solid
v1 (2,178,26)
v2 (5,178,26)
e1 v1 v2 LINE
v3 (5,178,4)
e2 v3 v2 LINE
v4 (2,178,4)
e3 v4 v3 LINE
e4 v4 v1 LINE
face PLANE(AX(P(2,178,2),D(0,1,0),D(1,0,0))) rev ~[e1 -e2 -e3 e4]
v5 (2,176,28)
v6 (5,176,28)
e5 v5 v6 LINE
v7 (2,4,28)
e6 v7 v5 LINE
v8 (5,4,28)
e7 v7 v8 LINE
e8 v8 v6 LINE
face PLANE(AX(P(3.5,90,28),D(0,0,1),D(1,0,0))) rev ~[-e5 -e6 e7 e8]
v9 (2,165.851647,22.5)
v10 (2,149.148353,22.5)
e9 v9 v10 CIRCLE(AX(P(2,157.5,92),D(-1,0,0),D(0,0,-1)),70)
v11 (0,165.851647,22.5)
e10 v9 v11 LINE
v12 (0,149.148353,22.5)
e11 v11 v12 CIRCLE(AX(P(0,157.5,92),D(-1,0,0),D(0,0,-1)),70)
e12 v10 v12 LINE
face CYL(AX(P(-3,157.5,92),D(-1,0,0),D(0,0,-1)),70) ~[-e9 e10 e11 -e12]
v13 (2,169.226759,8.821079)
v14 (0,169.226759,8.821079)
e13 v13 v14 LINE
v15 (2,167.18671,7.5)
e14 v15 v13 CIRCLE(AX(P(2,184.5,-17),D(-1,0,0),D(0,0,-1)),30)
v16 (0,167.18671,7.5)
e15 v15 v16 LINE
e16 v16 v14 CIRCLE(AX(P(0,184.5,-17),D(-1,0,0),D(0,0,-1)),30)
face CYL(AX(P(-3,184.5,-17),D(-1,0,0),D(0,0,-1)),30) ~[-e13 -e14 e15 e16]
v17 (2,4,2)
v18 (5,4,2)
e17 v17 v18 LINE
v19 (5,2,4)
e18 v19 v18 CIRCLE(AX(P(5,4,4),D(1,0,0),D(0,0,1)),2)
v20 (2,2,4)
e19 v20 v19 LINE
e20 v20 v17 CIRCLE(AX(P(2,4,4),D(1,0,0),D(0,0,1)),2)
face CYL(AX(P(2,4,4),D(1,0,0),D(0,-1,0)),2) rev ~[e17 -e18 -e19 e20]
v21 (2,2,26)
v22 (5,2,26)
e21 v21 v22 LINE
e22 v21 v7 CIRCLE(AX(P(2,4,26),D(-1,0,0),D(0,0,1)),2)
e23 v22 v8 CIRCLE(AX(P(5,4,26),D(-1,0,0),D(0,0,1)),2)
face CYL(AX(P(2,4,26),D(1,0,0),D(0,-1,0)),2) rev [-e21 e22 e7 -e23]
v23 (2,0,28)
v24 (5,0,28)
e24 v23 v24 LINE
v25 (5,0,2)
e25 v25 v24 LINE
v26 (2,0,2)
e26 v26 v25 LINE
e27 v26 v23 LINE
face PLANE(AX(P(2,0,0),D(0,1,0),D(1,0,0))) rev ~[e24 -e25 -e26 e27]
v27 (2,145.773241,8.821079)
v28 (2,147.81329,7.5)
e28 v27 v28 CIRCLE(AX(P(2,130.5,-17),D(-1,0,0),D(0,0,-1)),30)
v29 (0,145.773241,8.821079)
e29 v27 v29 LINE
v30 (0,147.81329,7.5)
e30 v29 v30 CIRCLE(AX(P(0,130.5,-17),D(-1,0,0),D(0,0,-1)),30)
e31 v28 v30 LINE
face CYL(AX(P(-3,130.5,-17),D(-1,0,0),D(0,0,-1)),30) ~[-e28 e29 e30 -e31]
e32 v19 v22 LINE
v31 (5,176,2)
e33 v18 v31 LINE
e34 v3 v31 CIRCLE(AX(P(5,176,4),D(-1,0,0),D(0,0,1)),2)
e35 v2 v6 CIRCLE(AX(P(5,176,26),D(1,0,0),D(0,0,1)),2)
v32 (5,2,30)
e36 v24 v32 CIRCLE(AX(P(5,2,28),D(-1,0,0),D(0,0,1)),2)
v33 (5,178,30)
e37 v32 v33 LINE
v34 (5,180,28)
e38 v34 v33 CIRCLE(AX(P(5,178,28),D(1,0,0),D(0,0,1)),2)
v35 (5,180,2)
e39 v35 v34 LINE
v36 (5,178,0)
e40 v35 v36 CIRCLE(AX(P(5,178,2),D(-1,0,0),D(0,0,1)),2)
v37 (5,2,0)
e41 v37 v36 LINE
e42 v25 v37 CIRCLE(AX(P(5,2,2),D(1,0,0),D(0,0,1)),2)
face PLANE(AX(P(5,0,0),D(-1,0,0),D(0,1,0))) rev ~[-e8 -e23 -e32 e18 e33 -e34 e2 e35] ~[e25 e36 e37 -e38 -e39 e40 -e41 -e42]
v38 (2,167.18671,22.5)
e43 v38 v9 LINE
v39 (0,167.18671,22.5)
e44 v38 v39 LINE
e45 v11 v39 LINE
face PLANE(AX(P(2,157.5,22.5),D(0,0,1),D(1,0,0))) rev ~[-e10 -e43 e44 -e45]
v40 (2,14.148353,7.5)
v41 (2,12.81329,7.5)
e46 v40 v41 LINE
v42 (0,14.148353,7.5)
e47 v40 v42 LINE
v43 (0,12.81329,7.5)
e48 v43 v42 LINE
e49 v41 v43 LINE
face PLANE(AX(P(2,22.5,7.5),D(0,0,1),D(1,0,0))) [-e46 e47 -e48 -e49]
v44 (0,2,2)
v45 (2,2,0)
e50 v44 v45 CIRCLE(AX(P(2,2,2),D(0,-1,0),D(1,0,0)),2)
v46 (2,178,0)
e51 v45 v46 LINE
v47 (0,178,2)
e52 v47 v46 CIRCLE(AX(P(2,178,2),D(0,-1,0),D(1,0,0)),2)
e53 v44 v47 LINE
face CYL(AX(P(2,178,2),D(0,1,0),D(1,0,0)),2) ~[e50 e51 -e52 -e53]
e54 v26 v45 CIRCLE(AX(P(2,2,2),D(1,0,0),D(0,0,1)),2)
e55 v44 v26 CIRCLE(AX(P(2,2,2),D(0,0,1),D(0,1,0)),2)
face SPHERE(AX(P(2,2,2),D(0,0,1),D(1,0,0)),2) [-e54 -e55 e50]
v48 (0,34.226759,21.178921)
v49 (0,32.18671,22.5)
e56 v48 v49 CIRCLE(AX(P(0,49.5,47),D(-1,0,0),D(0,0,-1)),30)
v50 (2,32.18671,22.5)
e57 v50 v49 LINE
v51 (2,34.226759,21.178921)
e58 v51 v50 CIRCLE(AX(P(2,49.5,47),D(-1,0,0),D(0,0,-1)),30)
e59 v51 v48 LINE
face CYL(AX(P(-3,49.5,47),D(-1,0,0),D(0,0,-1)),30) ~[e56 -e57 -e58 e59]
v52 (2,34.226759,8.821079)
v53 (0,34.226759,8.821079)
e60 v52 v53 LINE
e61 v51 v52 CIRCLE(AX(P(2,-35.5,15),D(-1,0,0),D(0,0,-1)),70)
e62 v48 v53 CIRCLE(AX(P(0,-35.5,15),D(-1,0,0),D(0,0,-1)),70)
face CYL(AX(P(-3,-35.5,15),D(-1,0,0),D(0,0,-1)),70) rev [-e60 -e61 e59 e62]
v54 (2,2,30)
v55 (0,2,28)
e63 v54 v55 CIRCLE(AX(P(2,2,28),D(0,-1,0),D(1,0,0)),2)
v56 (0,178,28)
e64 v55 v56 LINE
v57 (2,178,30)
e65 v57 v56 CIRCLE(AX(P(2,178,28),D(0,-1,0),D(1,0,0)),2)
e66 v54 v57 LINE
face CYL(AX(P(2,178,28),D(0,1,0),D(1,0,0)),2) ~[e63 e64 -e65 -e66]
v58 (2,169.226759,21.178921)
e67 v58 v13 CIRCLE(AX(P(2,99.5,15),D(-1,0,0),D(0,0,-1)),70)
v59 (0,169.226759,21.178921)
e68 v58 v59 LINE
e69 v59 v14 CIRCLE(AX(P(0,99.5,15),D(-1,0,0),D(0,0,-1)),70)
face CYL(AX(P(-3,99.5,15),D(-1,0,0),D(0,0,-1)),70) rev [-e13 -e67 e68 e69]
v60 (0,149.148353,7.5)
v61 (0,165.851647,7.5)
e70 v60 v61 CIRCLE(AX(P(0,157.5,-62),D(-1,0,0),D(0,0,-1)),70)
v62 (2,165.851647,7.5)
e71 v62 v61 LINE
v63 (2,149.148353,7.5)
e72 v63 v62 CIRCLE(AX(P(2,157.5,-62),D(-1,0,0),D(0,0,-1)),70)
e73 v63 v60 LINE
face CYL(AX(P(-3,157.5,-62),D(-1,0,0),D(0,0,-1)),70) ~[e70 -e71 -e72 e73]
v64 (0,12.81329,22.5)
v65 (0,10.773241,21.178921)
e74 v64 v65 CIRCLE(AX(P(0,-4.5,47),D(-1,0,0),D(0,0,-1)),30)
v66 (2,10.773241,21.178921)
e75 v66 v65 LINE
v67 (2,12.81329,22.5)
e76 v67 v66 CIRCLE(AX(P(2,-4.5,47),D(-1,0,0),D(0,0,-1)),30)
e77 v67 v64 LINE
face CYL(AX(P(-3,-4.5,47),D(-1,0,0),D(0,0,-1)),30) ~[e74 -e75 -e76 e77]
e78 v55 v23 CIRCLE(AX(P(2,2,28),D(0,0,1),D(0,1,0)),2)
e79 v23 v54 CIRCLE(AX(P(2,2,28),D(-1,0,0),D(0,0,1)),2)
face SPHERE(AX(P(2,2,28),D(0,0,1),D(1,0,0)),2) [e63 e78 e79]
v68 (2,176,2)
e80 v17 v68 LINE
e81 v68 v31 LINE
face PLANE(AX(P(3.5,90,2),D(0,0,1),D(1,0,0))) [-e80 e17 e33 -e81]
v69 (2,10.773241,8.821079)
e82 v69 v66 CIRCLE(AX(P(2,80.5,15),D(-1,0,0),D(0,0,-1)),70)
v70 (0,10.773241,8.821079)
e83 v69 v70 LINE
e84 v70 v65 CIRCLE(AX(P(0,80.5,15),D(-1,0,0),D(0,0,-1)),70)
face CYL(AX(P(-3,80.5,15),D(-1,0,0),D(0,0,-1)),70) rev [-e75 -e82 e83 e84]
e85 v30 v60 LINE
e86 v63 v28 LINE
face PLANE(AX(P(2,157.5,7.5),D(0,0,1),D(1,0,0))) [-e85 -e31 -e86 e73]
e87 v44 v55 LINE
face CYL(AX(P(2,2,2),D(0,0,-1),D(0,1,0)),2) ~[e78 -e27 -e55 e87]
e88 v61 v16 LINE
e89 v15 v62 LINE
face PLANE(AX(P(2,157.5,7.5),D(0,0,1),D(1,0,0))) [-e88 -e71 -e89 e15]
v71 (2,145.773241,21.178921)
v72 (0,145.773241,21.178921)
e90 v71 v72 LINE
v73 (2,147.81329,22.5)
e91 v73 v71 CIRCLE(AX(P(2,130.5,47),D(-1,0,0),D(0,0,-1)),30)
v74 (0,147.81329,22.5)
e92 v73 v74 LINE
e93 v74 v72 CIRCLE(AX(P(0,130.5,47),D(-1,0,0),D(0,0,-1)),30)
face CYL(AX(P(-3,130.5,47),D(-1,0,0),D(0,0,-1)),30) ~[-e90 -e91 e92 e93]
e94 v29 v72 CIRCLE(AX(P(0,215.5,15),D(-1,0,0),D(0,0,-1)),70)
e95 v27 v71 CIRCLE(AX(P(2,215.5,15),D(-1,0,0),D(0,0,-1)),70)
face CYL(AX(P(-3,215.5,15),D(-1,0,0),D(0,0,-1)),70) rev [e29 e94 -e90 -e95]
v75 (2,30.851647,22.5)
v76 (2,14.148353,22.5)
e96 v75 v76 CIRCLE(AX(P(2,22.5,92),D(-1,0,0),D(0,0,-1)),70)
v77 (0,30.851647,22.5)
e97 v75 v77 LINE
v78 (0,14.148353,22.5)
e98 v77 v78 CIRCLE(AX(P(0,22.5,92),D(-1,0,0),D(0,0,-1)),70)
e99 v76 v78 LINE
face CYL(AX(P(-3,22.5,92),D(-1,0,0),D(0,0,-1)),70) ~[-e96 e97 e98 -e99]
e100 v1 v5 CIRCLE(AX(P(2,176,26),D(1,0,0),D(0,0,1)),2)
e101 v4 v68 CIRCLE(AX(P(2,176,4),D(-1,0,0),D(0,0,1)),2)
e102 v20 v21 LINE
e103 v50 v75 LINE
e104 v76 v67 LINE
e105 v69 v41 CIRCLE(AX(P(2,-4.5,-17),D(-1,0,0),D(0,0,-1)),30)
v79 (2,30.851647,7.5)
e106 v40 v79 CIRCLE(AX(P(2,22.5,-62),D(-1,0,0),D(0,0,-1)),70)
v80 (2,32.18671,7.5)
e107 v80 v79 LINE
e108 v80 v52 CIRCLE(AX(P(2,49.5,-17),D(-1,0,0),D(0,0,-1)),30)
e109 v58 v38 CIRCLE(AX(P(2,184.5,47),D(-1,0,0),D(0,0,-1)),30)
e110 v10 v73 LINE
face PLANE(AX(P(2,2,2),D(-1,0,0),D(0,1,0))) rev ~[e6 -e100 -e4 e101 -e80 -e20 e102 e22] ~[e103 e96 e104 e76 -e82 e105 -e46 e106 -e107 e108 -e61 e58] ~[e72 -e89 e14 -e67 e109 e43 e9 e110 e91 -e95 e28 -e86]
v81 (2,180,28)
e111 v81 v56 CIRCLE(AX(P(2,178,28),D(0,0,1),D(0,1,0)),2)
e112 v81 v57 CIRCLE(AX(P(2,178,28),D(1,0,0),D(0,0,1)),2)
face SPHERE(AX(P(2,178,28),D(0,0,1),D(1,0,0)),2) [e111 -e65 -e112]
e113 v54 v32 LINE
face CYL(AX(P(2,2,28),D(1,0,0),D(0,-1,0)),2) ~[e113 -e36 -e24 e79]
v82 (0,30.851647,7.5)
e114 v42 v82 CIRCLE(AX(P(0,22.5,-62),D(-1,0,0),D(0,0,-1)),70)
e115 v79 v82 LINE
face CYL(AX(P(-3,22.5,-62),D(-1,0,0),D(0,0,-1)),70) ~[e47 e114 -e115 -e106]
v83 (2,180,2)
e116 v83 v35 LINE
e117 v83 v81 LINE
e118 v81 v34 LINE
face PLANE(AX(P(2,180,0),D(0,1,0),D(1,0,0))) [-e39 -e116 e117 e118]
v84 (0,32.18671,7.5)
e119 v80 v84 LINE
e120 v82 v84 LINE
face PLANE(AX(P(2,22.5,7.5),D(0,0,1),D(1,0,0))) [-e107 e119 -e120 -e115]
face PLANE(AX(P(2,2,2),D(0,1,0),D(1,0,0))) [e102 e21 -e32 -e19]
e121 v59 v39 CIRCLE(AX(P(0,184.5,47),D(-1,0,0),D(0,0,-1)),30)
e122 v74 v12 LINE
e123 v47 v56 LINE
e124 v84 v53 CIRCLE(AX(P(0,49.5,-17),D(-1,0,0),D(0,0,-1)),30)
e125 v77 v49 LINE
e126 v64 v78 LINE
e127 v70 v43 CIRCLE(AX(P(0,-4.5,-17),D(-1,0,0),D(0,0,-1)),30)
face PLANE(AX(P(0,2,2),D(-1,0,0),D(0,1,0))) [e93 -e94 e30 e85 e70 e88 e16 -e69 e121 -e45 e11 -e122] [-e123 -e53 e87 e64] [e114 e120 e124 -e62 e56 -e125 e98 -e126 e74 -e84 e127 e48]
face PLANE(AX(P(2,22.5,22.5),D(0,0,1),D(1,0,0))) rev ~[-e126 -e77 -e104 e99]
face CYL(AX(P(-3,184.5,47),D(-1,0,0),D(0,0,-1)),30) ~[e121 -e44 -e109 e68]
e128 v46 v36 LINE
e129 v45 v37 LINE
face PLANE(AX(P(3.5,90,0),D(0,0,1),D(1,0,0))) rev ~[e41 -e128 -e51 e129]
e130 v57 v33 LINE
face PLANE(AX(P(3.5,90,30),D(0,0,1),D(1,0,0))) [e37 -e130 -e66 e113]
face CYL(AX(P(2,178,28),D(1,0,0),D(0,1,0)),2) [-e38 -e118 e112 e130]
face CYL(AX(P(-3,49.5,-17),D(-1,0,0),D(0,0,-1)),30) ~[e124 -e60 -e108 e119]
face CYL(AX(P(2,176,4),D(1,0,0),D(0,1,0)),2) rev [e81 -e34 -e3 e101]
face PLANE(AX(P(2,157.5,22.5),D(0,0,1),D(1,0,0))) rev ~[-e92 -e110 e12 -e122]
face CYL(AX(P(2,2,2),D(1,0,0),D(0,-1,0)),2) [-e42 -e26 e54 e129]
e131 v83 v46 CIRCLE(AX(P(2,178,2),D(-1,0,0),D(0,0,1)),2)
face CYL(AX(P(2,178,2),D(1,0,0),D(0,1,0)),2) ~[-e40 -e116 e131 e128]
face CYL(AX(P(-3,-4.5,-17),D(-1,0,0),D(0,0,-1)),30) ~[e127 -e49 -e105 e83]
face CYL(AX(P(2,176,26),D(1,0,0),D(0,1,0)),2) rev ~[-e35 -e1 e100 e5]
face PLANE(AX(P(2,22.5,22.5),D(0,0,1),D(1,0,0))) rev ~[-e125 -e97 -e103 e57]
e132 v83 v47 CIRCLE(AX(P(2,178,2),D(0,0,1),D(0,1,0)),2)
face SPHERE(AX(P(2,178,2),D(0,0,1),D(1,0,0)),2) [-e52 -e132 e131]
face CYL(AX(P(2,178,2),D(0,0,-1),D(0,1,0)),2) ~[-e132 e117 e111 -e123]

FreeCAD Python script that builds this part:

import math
import FreeCAD as App
import Part
import Sketcher


def edges_at(feature, points):
    """Names of the edges that pass closest to the given points."""
    edges = feature.Shape.Edges
    near = lambda p: min(range(len(edges)), key=lambda i: edges[i].distToShape(Part.Vertex(*p))[0])
    return sorted({f"Edge{near(p) + 1}" for p in points})

doc = App.newDocument("Part")
body = doc.addObject("PartDesign::Body", "Body")

sketch1 = doc.addObject("Sketcher::SketchObject", "Sketch")
body.addObject(sketch1)
sketch1.AttachmentSupport = (doc.XY_Plane, [""])
sketch1.MapMode = "FlatFace"
sketch1.AttachmentOffset = App.Placement(App.Vector(0, 0, 2), App.Rotation())
sketch1.addGeometry(Part.LineSegment(App.Vector(7, 178, 0), App.Vector(7, 2, 0)), False)
sketch1.addGeometry(Part.LineSegment(App.Vector(7, 2, 0), App.Vector(10, 2, 0)), False)
sketch1.addGeometry(Part.LineSegment(App.Vector(10, 2, 0), App.Vector(10, 178, 0)), False)
sketch1.addGeometry(Part.LineSegment(App.Vector(10, 178, 0), App.Vector(7, 178, 0)), False)
sketch1.addConstraint(Sketcher.Constraint("Coincident", 0, 2, 1, 1))
sketch1.addConstraint(Sketcher.Constraint("Coincident", 1, 2, 2, 1))
sketch1.addConstraint(Sketcher.Constraint("Coincident", 2, 2, 3, 1))
sketch1.addConstraint(Sketcher.Constraint("Coincident", 3, 2, 0, 1))
sketch1.addConstraint(Sketcher.Constraint("Vertical", 0))
sketch1.addConstraint(Sketcher.Constraint("Horizontal", 1))
sketch1.addConstraint(Sketcher.Constraint("Vertical", 2))
sketch1.addConstraint(Sketcher.Constraint("Horizontal", 3))
sketch1.addConstraint(Sketcher.Constraint("DistanceX", 1, 1, 1, 2, 3.0))
sketch1.addConstraint(Sketcher.Constraint("DistanceY", 0, 2, 0, 1, 176.0))
sketch1.addConstraint(Sketcher.Constraint("DistanceX", -1, 1, 0, 2, 7.0))
sketch1.addConstraint(Sketcher.Constraint("DistanceY", -1, 1, 0, 2, 2.0))
pad1 = doc.addObject("PartDesign::Pad", "Pad")
body.addObject(pad1)
pad1.Profile = sketch1
pad1.Length = 26
doc.recompute()

fillet = doc.addObject("PartDesign::Fillet", "Fillet")
body.addObject(fillet)
fillet.Base = (pad1, edges_at(pad1, [
    (8.5, 2, 2),
    (8.5, 2, 28),
    (8.5, 178, 2),
    (8.5, 178, 28),
]))
fillet.Radius = 2
body2 = doc.addObject("PartDesign::Body", "Body001")
doc.recompute()

body.Placement = App.Placement(App.Vector(-5, 0, 0), App.Rotation(App.Vector(0, 0, 1), 0))
boolean = doc.addObject("PartDesign::Boolean", "Boolean")
body2.addObject(boolean)
boolean.Type = "Fuse"
boolean.addObjects([body])
body3 = doc.addObject("PartDesign::Body", "Body002")

sketch2 = doc.addObject("Sketcher::SketchObject", "Sketch001")
body3.addObject(sketch2)
sketch2.AttachmentSupport = (doc.getObject("YZ_Plane002"), [""])
sketch2.MapMode = "FlatFace"
sketch2.AttachmentOffset = App.Placement(App.Vector(0, 0, 22), App.Rotation())
sketch2.addGeometry(Part.Circle(App.Vector(-27, 39.5, 0), App.Vector(0, 0, 1), 30), False)
sketch2.addConstraint(Sketcher.Constraint("Diameter", 0, 60.0))
sketch2.addConstraint(Sketcher.Constraint("DistanceX", 0, 3, -1, 1, 27.0))
sketch2.addConstraint(Sketcher.Constraint("DistanceY", -1, 1, 0, 3, 39.5))
pad2 = doc.addObject("PartDesign::Pad", "Pad001")
body3.addObject(pad2)
pad2.Profile = sketch2
pad2.Length = 10
body4 = doc.addObject("PartDesign::Body", "Body003")

sketch3 = doc.addObject("Sketcher::SketchObject", "Sketch002")
body4.addObject(sketch3)
sketch3.AttachmentSupport = (doc.getObject("YZ_Plane003"), [""])
sketch3.MapMode = "FlatFace"
sketch3.AttachmentOffset = App.Placement(App.Vector(0, 0, 22), App.Rotation())
sketch3.addGeometry(Part.Circle(App.Vector(-27, -24.5, 0), App.Vector(0, 0, 1), 30), False)
sketch3.addConstraint(Sketcher.Constraint("Diameter", 0, 60.0))
sketch3.addConstraint(Sketcher.Constraint("DistanceX", 0, 3, -1, 1, 27.0))
sketch3.addConstraint(Sketcher.Constraint("DistanceY", 0, 3, -1, 1, 24.5))
pad3 = doc.addObject("PartDesign::Pad", "Pad002")
body4.addObject(pad3)
pad3.Profile = sketch3
pad3.Length = 10
body5 = doc.addObject("PartDesign::Body", "Body004")

sketch4 = doc.addObject("Sketcher::SketchObject", "Sketch003")
body5.addObject(sketch4)
sketch4.AttachmentSupport = (doc.getObject("YZ_Plane004"), [""])
sketch4.MapMode = "FlatFace"
sketch4.AttachmentOffset = App.Placement(App.Vector(0, 0, 22), App.Rotation())
sketch4.addGeometry(Part.Circle(App.Vector(27, -24.5, 0), App.Vector(0, 0, 1), 30), False)
sketch4.addConstraint(Sketcher.Constraint("Diameter", 0, 60.0))
sketch4.addConstraint(Sketcher.Constraint("DistanceX", -1, 1, 0, 3, 27.0))
sketch4.addConstraint(Sketcher.Constraint("DistanceY", 0, 3, -1, 1, 24.5))
pad4 = doc.addObject("PartDesign::Pad", "Pad003")
body5.addObject(pad4)
pad4.Profile = sketch4
pad4.Length = 10
body6 = doc.addObject("PartDesign::Body", "Body005")

sketch5 = doc.addObject("Sketcher::SketchObject", "Sketch004")
body6.addObject(sketch5)
sketch5.AttachmentSupport = (doc.getObject("YZ_Plane005"), [""])
sketch5.MapMode = "FlatFace"
sketch5.AttachmentOffset = App.Placement(App.Vector(0, 0, 22), App.Rotation())
sketch5.addGeometry(Part.Circle(App.Vector(27, 39.5, 0), App.Vector(0, 0, 1), 30), False)
sketch5.addConstraint(Sketcher.Constraint("Diameter", 0, 60.0))
sketch5.addConstraint(Sketcher.Constraint("DistanceX", -1, 1, 0, 3, 27.0))
sketch5.addConstraint(Sketcher.Constraint("DistanceY", -1, 1, 0, 3, 39.5))
pad5 = doc.addObject("PartDesign::Pad", "Pad004")
body6.addObject(pad5)
pad5.Profile = sketch5
pad5.Length = 10
body7 = doc.addObject("PartDesign::Body", "Body006")

sketch6 = doc.addObject("Sketcher::SketchObject", "Sketch005")
body7.addObject(sketch6)
sketch6.AttachmentSupport = (doc.getObject("YZ_Plane006"), [""])
sketch6.MapMode = "FlatFace"
sketch6.AttachmentOffset = App.Placement(App.Vector(0, 0, 22), App.Rotation())
sketch6.addGeometry(Part.Circle(App.Vector(-58, 7.5, 0), App.Vector(0, 0, 1), 70), False)
sketch6.addConstraint(Sketcher.Constraint("Diameter", 0, 140.0))
sketch6.addConstraint(Sketcher.Constraint("DistanceX", 0, 3, -1, 1, 58.0))
sketch6.addConstraint(Sketcher.Constraint("DistanceY", -1, 1, 0, 3, 7.5))
pad6 = doc.addObject("PartDesign::Pad", "Pad005")
body7.addObject(pad6)
pad6.Profile = sketch6
pad6.Length = 10
body8 = doc.addObject("PartDesign::Body", "Body007")

sketch7 = doc.addObject("Sketcher::SketchObject", "Sketch006")
body8.addObject(sketch7)
sketch7.AttachmentSupport = (doc.getObject("YZ_Plane007"), [""])
sketch7.MapMode = "FlatFace"
sketch7.AttachmentOffset = App.Placement(App.Vector(0, 0, 22), App.Rotation())
sketch7.addGeometry(Part.Circle(App.Vector(58, 7.5, 0), App.Vector(0, 0, 1), 70), False)
sketch7.addConstraint(Sketcher.Constraint("Diameter", 0, 140.0))
sketch7.addConstraint(Sketcher.Constraint("DistanceX", -1, 1, 0, 3, 58.0))
sketch7.addConstraint(Sketcher.Constraint("DistanceY", -1, 1, 0, 3, 7.5))
pad7 = doc.addObject("PartDesign::Pad", "Pad006")
body8.addObject(pad7)
pad7.Profile = sketch7
pad7.Length = 10
body9 = doc.addObject("PartDesign::Body", "Body008")

sketch8 = doc.addObject("Sketcher::SketchObject", "Sketch007")
body9.addObject(sketch8)
sketch8.AttachmentSupport = (doc.getObject("YZ_Plane008"), [""])
sketch8.MapMode = "FlatFace"
sketch8.AttachmentOffset = App.Placement(App.Vector(0, 0, 22), App.Rotation())
sketch8.addGeometry(Part.Circle(App.Vector(0, 84.5, 0), App.Vector(0, 0, 1), 70), False)
sketch8.addConstraint(Sketcher.Constraint("PointOnObject", 0, 3, -2))
sketch8.addConstraint(Sketcher.Constraint("Diameter", 0, 140.0))
sketch8.addConstraint(Sketcher.Constraint("DistanceY", -1, 1, 0, 3, 84.5))
pad8 = doc.addObject("PartDesign::Pad", "Pad007")
body9.addObject(pad8)
pad8.Profile = sketch8
pad8.Length = 10
body10 = doc.addObject("PartDesign::Body", "Body009")

sketch9 = doc.addObject("Sketcher::SketchObject", "Sketch008")
body10.addObject(sketch9)
sketch9.AttachmentSupport = (doc.getObject("YZ_Plane009"), [""])
sketch9.MapMode = "FlatFace"
sketch9.AttachmentOffset = App.Placement(App.Vector(0, 0, 22), App.Rotation())
sketch9.addGeometry(Part.Circle(App.Vector(0, -69.5, 0), App.Vector(0, 0, 1), 70), False)
sketch9.addConstraint(Sketcher.Constraint("PointOnObject", 0, 3, -2))
sketch9.addConstraint(Sketcher.Constraint("Diameter", 0, 140.0))
sketch9.addConstraint(Sketcher.Constraint("DistanceY", 0, 3, -1, 1, 69.5))
pad9 = doc.addObject("PartDesign::Pad", "Pad008")
body10.addObject(pad9)
pad9.Profile = sketch9
pad9.Length = 10
body11 = doc.addObject("PartDesign::Body", "Body010")

sketch10 = doc.addObject("Sketcher::SketchObject", "Sketch009")
body11.addObject(sketch10)
sketch10.AttachmentSupport = (doc.getObject("XY_Plane010"), [""])
sketch10.MapMode = "FlatFace"
sketch10.addGeometry(Part.LineSegment(App.Vector(22, 12, 0), App.Vector(22, -12, 0)), False)
sketch10.addGeometry(Part.LineSegment(App.Vector(22, -12, 0), App.Vector(32, -12, 0)), False)
sketch10.addGeometry(Part.LineSegment(App.Vector(32, -12, 0), App.Vector(32, 12, 0)), False)
sketch10.addGeometry(Part.LineSegment(App.Vector(32, 12, 0), App.Vector(22, 12, 0)), False)
sketch10.addConstraint(Sketcher.Constraint("Coincident", 0, 2, 1, 1))
sketch10.addConstraint(Sketcher.Constraint("Coincident", 1, 2, 2, 1))
sketch10.addConstraint(Sketcher.Constraint("Coincident", 2, 2, 3, 1))
sketch10.addConstraint(Sketcher.Constraint("Coincident", 3, 2, 0, 1))
sketch10.addConstraint(Sketcher.Constraint("Vertical", 0))
sketch10.addConstraint(Sketcher.Constraint("Horizontal", 1))
sketch10.addConstraint(Sketcher.Constraint("Vertical", 2))
sketch10.addConstraint(Sketcher.Constraint("Horizontal", 3))
sketch10.addConstraint(Sketcher.Constraint("DistanceX", 1, 1, 1, 2, 10.0))
sketch10.addConstraint(Sketcher.Constraint("DistanceY", 0, 2, 0, 1, 24.0))
sketch10.addConstraint(Sketcher.Constraint("DistanceX", -1, 1, 0, 2, 22.0))
sketch10.addConstraint(Sketcher.Constraint("DistanceY", 0, 2, -1, 1, 12.0))
pad10 = doc.addObject("PartDesign::Pad", "Pad009")
body11.addObject(pad10)
pad10.Profile = sketch10
pad10.Length = 15
doc.recompute()

boolean2 = doc.addObject("PartDesign::Boolean", "Boolean001")
body11.addObject(boolean2)
boolean2.Type = "Cut"
boolean2.addObjects([body10])
doc.recompute()

boolean3 = doc.addObject("PartDesign::Boolean", "Boolean002")
body11.addObject(boolean3)
boolean3.Type = "Cut"
boolean3.addObjects([body9])
doc.recompute()

boolean4 = doc.addObject("PartDesign::Boolean", "Boolean003")
body11.addObject(boolean4)
boolean4.Type = "Common"
boolean4.addObjects([body8])
doc.recompute()

boolean5 = doc.addObject("PartDesign::Boolean", "Boolean004")
body11.addObject(boolean5)
boolean5.Type = "Common"
boolean5.addObjects([body7])
doc.recompute()

boolean6 = doc.addObject("PartDesign::Boolean", "Boolean005")
body11.addObject(boolean6)
boolean6.Type = "Cut"
boolean6.addObjects([body6])
doc.recompute()

boolean7 = doc.addObject("PartDesign::Boolean", "Boolean006")
body11.addObject(boolean7)
boolean7.Type = "Cut"
boolean7.addObjects([body5])
doc.recompute()

boolean8 = doc.addObject("PartDesign::Boolean", "Boolean007")
body11.addObject(boolean8)
boolean8.Type = "Cut"
boolean8.addObjects([body4])
doc.recompute()

boolean9 = doc.addObject("PartDesign::Boolean", "Boolean008")
body11.addObject(boolean9)
boolean9.Type = "Cut"
boolean9.addObjects([body3])
body12 = doc.addObject("PartDesign::Body", "Body011")
doc.recompute()

body11.Placement = App.Placement(App.Vector(-25, 22.5, 7.5), App.Rotation(App.Vector(0, 0, 1), 0))
boolean10 = doc.addObject("PartDesign::Boolean", "Boolean009")
body12.addObject(boolean10)
boolean10.Type = "Fuse"
boolean10.addObjects([body11])
body13 = doc.addObject("PartDesign::Body", "Body012")

sketch11 = doc.addObject("Sketcher::SketchObject", "Sketch010")
body13.addObject(sketch11)
sketch11.AttachmentSupport = (doc.getObject("YZ_Plane012"), [""])
sketch11.MapMode = "FlatFace"
sketch11.AttachmentOffset = App.Placement(App.Vector(0, 0, 22), App.Rotation())
sketch11.addGeometry(Part.Circle(App.Vector(-27, 39.5, 0), App.Vector(0, 0, 1), 30), False)
sketch11.addConstraint(Sketcher.Constraint("Diameter", 0, 60.0))
sketch11.addConstraint(Sketcher.Constraint("DistanceX", 0, 3, -1, 1, 27.0))
sketch11.addConstraint(Sketcher.Constraint("DistanceY", -1, 1, 0, 3, 39.5))
pad11 = doc.addObject("PartDesign::Pad", "Pad010")
body13.addObject(pad11)
pad11.Profile = sketch11
pad11.Length = 10
body14 = doc.addObject("PartDesign::Body", "Body013")

sketch12 = doc.addObject("Sketcher::SketchObject", "Sketch011")
body14.addObject(sketch12)
sketch12.AttachmentSupport = (doc.getObject("YZ_Plane013"), [""])
sketch12.MapMode = "FlatFace"
sketch12.AttachmentOffset = App.Placement(App.Vector(0, 0, 22), App.Rotation())
sketch12.addGeometry(Part.Circle(App.Vector(-27, -24.5, 0), App.Vector(0, 0, 1), 30), False)
sketch12.addConstraint(Sketcher.Constraint("Diameter", 0, 60.0))
sketch12.addConstraint(Sketcher.Constraint("DistanceX", 0, 3, -1, 1, 27.0))
sketch12.addConstraint(Sketcher.Constraint("DistanceY", 0, 3, -1, 1, 24.5))
pad12 = doc.addObject("PartDesign::Pad", "Pad011")
body14.addObject(pad12)
pad12.Profile = sketch12
pad12.Length = 10
body15 = doc.addObject("PartDesign::Body", "Body014")

sketch13 = doc.addObject("Sketcher::SketchObject", "Sketch012")
body15.addObject(sketch13)
sketch13.AttachmentSupport = (doc.getObject("YZ_Plane014"), [""])
sketch13.MapMode = "FlatFace"
sketch13.AttachmentOffset = App.Placement(App.Vector(0, 0, 22), App.Rotation())
sketch13.addGeometry(Part.Circle(App.Vector(27, -24.5, 0), App.Vector(0, 0, 1), 30), False)
sketch13.addConstraint(Sketcher.Constraint("Diameter", 0, 60.0))
sketch13.addConstraint(Sketcher.Constraint("DistanceX", -1, 1, 0, 3, 27.0))
sketch13.addConstraint(Sketcher.Constraint("DistanceY", 0, 3, -1, 1, 24.5))
pad13 = doc.addObject("PartDesign::Pad", "Pad012")
body15.addObject(pad13)
pad13.Profile = sketch13
pad13.Length = 10
body16 = doc.addObject("PartDesign::Body", "Body015")

sketch14 = doc.addObject("Sketcher::SketchObject", "Sketch013")
body16.addObject(sketch14)
sketch14.AttachmentSupport = (doc.getObject("YZ_Plane015"), [""])
sketch14.MapMode = "FlatFace"
sketch14.AttachmentOffset = App.Placement(App.Vector(0, 0, 22), App.Rotation())
sketch14.addGeometry(Part.Circle(App.Vector(27, 39.5, 0), App.Vector(0, 0, 1), 30), False)
sketch14.addConstraint(Sketcher.Constraint("Diameter", 0, 60.0))
sketch14.addConstraint(Sketcher.Constraint("DistanceX", -1, 1, 0, 3, 27.0))
sketch14.addConstraint(Sketcher.Constraint("DistanceY", -1, 1, 0, 3, 39.5))
pad14 = doc.addObject("PartDesign::Pad", "Pad013")
body16.addObject(pad14)
pad14.Profile = sketch14
pad14.Length = 10
body17 = doc.addObject("PartDesign::Body", "Body016")

sketch15 = doc.addObject("Sketcher::SketchObject", "Sketch014")
body17.addObject(sketch15)
sketch15.AttachmentSupport = (doc.getObject("YZ_Plane016"), [""])
sketch15.MapMode = "FlatFace"
sketch15.AttachmentOffset = App.Placement(App.Vector(0, 0, 22), App.Rotation())
sketch15.addGeometry(Part.Circle(App.Vector(-58, 7.5, 0), App.Vector(0, 0, 1), 70), False)
sketch15.addConstraint(Sketcher.Constraint("Diameter", 0, 140.0))
sketch15.addConstraint(Sketcher.Constraint("DistanceX", 0, 3, -1, 1, 58.0))
sketch15.addConstraint(Sketcher.Constraint("DistanceY", -1, 1, 0, 3, 7.5))
pad15 = doc.addObject("PartDesign::Pad", "Pad014")
body17.addObject(pad15)
pad15.Profile = sketch15
pad15.Length = 10
body18 = doc.addObject("PartDesign::Body", "Body017")

sketch16 = doc.addObject("Sketcher::SketchObject", "Sketch015")
body18.addObject(sketch16)
sketch16.AttachmentSupport = (doc.getObject("YZ_Plane017"), [""])
sketch16.MapMode = "FlatFace"
sketch16.AttachmentOffset = App.Placement(App.Vector(0, 0, 22), App.Rotation())
sketch16.addGeometry(Part.Circle(App.Vector(58, 7.5, 0), App.Vector(0, 0, 1), 70), False)
sketch16.addConstraint(Sketcher.Constraint("Diameter", 0, 140.0))
sketch16.addConstraint(Sketcher.Constraint("DistanceX", -1, 1, 0, 3, 58.0))
sketch16.addConstraint(Sketcher.Constraint("DistanceY", -1, 1, 0, 3, 7.5))
pad16 = doc.addObject("PartDesign::Pad", "Pad015")
body18.addObject(pad16)
pad16.Profile = sketch16
pad16.Length = 10
body19 = doc.addObject("PartDesign::Body", "Body018")

sketch17 = doc.addObject("Sketcher::SketchObject", "Sketch016")
body19.addObject(sketch17)
sketch17.AttachmentSupport = (doc.getObject("YZ_Plane018"), [""])
sketch17.MapMode = "FlatFace"
sketch17.AttachmentOffset = App.Placement(App.Vector(0, 0, 22), App.Rotation())
sketch17.addGeometry(Part.Circle(App.Vector(0, 84.5, 0), App.Vector(0, 0, 1), 70), False)
sketch17.addConstraint(Sketcher.Constraint("PointOnObject", 0, 3, -2))
sketch17.addConstraint(Sketcher.Constraint("Diameter", 0, 140.0))
sketch17.addConstraint(Sketcher.Constraint("DistanceY", -1, 1, 0, 3, 84.5))
pad17 = doc.addObject("PartDesign::Pad", "Pad016")
body19.addObject(pad17)
pad17.Profile = sketch17
pad17.Length = 10
body20 = doc.addObject("PartDesign::Body", "Body019")

sketch18 = doc.addObject("Sketcher::SketchObject", "Sketch017")
body20.addObject(sketch18)
sketch18.AttachmentSupport = (doc.getObject("YZ_Plane019"), [""])
sketch18.MapMode = "FlatFace"
sketch18.AttachmentOffset = App.Placement(App.Vector(0, 0, 22), App.Rotation())
sketch18.addGeometry(Part.Circle(App.Vector(0, -69.5, 0), App.Vector(0, 0, 1), 70), False)
sketch18.addConstraint(Sketcher.Constraint("PointOnObject", 0, 3, -2))
sketch18.addConstraint(Sketcher.Constraint("Diameter", 0, 140.0))
sketch18.addConstraint(Sketcher.Constraint("DistanceY", 0, 3, -1, 1, 69.5))
pad18 = doc.addObject("PartDesign::Pad", "Pad017")
body20.addObject(pad18)
pad18.Profile = sketch18
pad18.Length = 10
body21 = doc.addObject("PartDesign::Body", "Body020")

sketch19 = doc.addObject("Sketcher::SketchObject", "Sketch018")
body21.addObject(sketch19)
sketch19.AttachmentSupport = (doc.getObject("XY_Plane020"), [""])
sketch19.MapMode = "FlatFace"
sketch19.addGeometry(Part.LineSegment(App.Vector(22, 12, 0), App.Vector(22, -12, 0)), False)
sketch19.addGeometry(Part.LineSegment(App.Vector(22, -12, 0), App.Vector(32, -12, 0)), False)
sketch19.addGeometry(Part.LineSegment(App.Vector(32, -12, 0), App.Vector(32, 12, 0)), False)
sketch19.addGeometry(Part.LineSegment(App.Vector(32, 12, 0), App.Vector(22, 12, 0)), False)
sketch19.addConstraint(Sketcher.Constraint("Coincident", 0, 2, 1, 1))
sketch19.addConstraint(Sketcher.Constraint("Coincident", 1, 2, 2, 1))
sketch19.addConstraint(Sketcher.Constraint("Coincident", 2, 2, 3, 1))
sketch19.addConstraint(Sketcher.Constraint("Coincident", 3, 2, 0, 1))
sketch19.addConstraint(Sketcher.Constraint("Vertical", 0))
sketch19.addConstraint(Sketcher.Constraint("Horizontal", 1))
sketch19.addConstraint(Sketcher.Constraint("Vertical", 2))
sketch19.addConstraint(Sketcher.Constraint("Horizontal", 3))
sketch19.addConstraint(Sketcher.Constraint("DistanceX", 1, 1, 1, 2, 10.0))
sketch19.addConstraint(Sketcher.Constraint("DistanceY", 0, 2, 0, 1, 24.0))
sketch19.addConstraint(Sketcher.Constraint("DistanceX", -1, 1, 0, 2, 22.0))
sketch19.addConstraint(Sketcher.Constraint("DistanceY", 0, 2, -1, 1, 12.0))
pad19 = doc.addObject("PartDesign::Pad", "Pad018")
body21.addObject(pad19)
pad19.Profile = sketch19
pad19.Length = 15
doc.recompute()

boolean11 = doc.addObject("PartDesign::Boolean", "Boolean010")
body21.addObject(boolean11)
boolean11.Type = "Cut"
boolean11.addObjects([body20])
doc.recompute()

boolean12 = doc.addObject("PartDesign::Boolean", "Boolean011")
body21.addObject(boolean12)
boolean12.Type = "Cut"
boolean12.addObjects([body19])
doc.recompute()

boolean13 = doc.addObject("PartDesign::Boolean", "Boolean012")
body21.addObject(boolean13)
boolean13.Type = "Common"
boolean13.addObjects([body18])
doc.recompute()

boolean14 = doc.addObject("PartDesign::Boolean", "Boolean013")
body21.addObject(boolean14)
boolean14.Type = "Common"
boolean14.addObjects([body17])
doc.recompute()

boolean15 = doc.addObject("PartDesign::Boolean", "Boolean014")
body21.addObject(boolean15)
boolean15.Type = "Cut"
boolean15.addObjects([body16])
doc.recompute()

boolean16 = doc.addObject("PartDesign::Boolean", "Boolean015")
body21.addObject(boolean16)
boolean16.Type = "Cut"
boolean16.addObjects([body15])
doc.recompute()

boolean17 = doc.addObject("PartDesign::Boolean", "Boolean016")
body21.addObject(boolean17)
boolean17.Type = "Cut"
boolean17.addObjects([body14])
doc.recompute()

boolean18 = doc.addObject("PartDesign::Boolean", "Boolean017")
body21.addObject(boolean18)
boolean18.Type = "Cut"
boolean18.addObjects([body13])
body22 = doc.addObject("PartDesign::Body", "Body021")
doc.recompute()

body21.Placement = App.Placement(App.Vector(-25, 157.5, 7.5), App.Rotation(App.Vector(0, 0, 1), 0))
boolean19 = doc.addObject("PartDesign::Boolean", "Boolean018")
body22.addObject(boolean19)
boolean19.Type = "Fuse"
boolean19.addObjects([body21])
body23 = doc.addObject("PartDesign::Body", "Body022")

sketch20 = doc.addObject("Sketcher::SketchObject", "Sketch019")
body23.addObject(sketch20)
sketch20.AttachmentSupport = (doc.getObject("XY_Plane022"), [""])
sketch20.MapMode = "FlatFace"
sketch20.AttachmentOffset = App.Placement(App.Vector(0, 0, 2), App.Rotation())
sketch20.addGeometry(Part.LineSegment(App.Vector(0, 178, 0), App.Vector(0, 2, 0)), False)
sketch20.addGeometry(Part.LineSegment(App.Vector(0, 2, 0), App.Vector(2, 2, 0)), False)
sketch20.addGeometry(Part.LineSegment(App.Vector(2, 2, 0), App.Vector(2, 178, 0)), False)
sketch20.addGeometry(Part.LineSegment(App.Vector(2, 178, 0), App.Vector(0, 178, 0)), False)
sketch20.addConstraint(Sketcher.Constraint("Coincident", 0, 2, 1, 1))
sketch20.addConstraint(Sketcher.Constraint("Coincident", 1, 2, 2, 1))
sketch20.addConstraint(Sketcher.Constraint("Coincident", 2, 2, 3, 1))
sketch20.addConstraint(Sketcher.Constraint("Coincident", 3, 2, 0, 1))
sketch20.addConstraint(Sketcher.Constraint("Vertical", 0))
sketch20.addConstraint(Sketcher.Constraint("Horizontal", 1))
sketch20.addConstraint(Sketcher.Constraint("Vertical", 2))
sketch20.addConstraint(Sketcher.Constraint("Horizontal", 3))
sketch20.addConstraint(Sketcher.Constraint("PointOnObject", 0, 2, -2))
sketch20.addConstraint(Sketcher.Constraint("DistanceX", 1, 1, 1, 2, 2.0))
sketch20.addConstraint(Sketcher.Constraint("DistanceY", 0, 2, 0, 1, 176.0))
sketch20.addConstraint(Sketcher.Constraint("DistanceY", -1, 1, 0, 2, 2.0))
pad20 = doc.addObject("PartDesign::Pad", "Pad019")
body23.addObject(pad20)
pad20.Profile = sketch20
pad20.Length = 26
body24 = doc.addObject("PartDesign::Body", "Body023")

sketch21 = doc.addObject("Sketcher::SketchObject", "Sketch020")
body24.addObject(sketch21)
sketch21.AttachmentSupport = (doc.getObject("XY_Plane023"), [""])
sketch21.MapMode = "FlatFace"
sketch21.AttachmentOffset = App.Placement(App.Vector(0, 0, 2), App.Rotation())
sketch21.addGeometry(Part.Circle(App.Vector(2, 2, 0), App.Vector(0, 0, 1), 2), False)
sketch21.addConstraint(Sketcher.Constraint("Diameter", 0, 4.0))
sketch21.addConstraint(Sketcher.Constraint("DistanceX", -1, 1, 0, 3, 2.0))
sketch21.addConstraint(Sketcher.Constraint("DistanceY", -1, 1, 0, 3, 2.0))
pad21 = doc.addObject("PartDesign::Pad", "Pad020")
body24.addObject(pad21)
pad21.Profile = sketch21
pad21.Length = 26
body25 = doc.addObject("PartDesign::Body", "Body024")

sketch22 = doc.addObject("Sketcher::SketchObject", "Sketch021")
body25.addObject(sketch22)
sketch22.AttachmentSupport = (doc.getObject("XY_Plane024"), [""])
sketch22.MapMode = "FlatFace"
sketch22.AttachmentOffset = App.Placement(App.Vector(0, 0, 2), App.Rotation())
sketch22.addGeometry(Part.Circle(App.Vector(2, 178, 0), App.Vector(0, 0, 1), 2), False)
sketch22.addConstraint(Sketcher.Constraint("Diameter", 0, 4.0))
sketch22.addConstraint(Sketcher.Constraint("DistanceX", -1, 1, 0, 3, 2.0))
sketch22.addConstraint(Sketcher.Constraint("DistanceY", -1, 1, 0, 3, 178.0))
pad22 = doc.addObject("PartDesign::Pad", "Pad021")
body25.addObject(pad22)
pad22.Profile = sketch22
pad22.Length = 26
body26 = doc.addObject("PartDesign::Body", "Body025")

sketch23 = doc.addObject("Sketcher::SketchObject", "Sketch022")
body26.addObject(sketch23)
sketch23.AttachmentSupport = (doc.getObject("XZ_Plane025"), [""])
sketch23.MapMode = "FlatFace"
sketch23.AttachmentOffset = App.Placement(App.Vector(0, 0, -178), App.Rotation())
sketch23.addGeometry(Part.Circle(App.Vector(2, 2, 0), App.Vector(0, 0, 1), 2), False)
sketch23.addConstraint(Sketcher.Constraint("Diameter", 0, 4.0))
sketch23.addConstraint(Sketcher.Constraint("DistanceX", -1, 1, 0, 3, 2.0))
sketch23.addConstraint(Sketcher.Constraint("DistanceY", -1, 1, 0, 3, 2.0))
pad23 = doc.addObject("PartDesign::Pad", "Pad022")
body26.addObject(pad23)
pad23.Profile = sketch23
pad23.Length = 176
body27 = doc.addObject("PartDesign::Body", "Body026")

sketch24 = doc.addObject("Sketcher::SketchObject", "Sketch023")
body27.addObject(sketch24)
sketch24.AttachmentSupport = (doc.getObject("XZ_Plane026"), [""])
sketch24.MapMode = "FlatFace"
sketch24.AttachmentOffset = App.Placement(App.Vector(0, 0, -178), App.Rotation())
sketch24.addGeometry(Part.Circle(App.Vector(2, 28, 0), App.Vector(0, 0, 1), 2), False)
sketch24.addConstraint(Sketcher.Constraint("Diameter", 0, 4.0))
sketch24.addConstraint(Sketcher.Constraint("DistanceX", -1, 1, 0, 3, 2.0))
sketch24.addConstraint(Sketcher.Constraint("DistanceY", -1, 1, 0, 3, 28.0))
pad24 = doc.addObject("PartDesign::Pad", "Pad023")
body27.addObject(pad24)
pad24.Profile = sketch24
pad24.Length = 176
body28 = doc.addObject("PartDesign::Body", "Body027")

sketch25 = doc.addObject("Sketcher::SketchObject", "Sketch024")
body28.addObject(sketch25)
sketch25.AttachmentSupport = (doc.getObject("XZ_Plane027"), [""])
sketch25.MapMode = "FlatFace"
sketch25.AttachmentOffset = App.Placement(App.Vector(0, 0, -2), App.Rotation())
sketch25.addGeometry(Part.ArcOfCircle(Part.Circle(App.Vector(2, 2, 0), App.Vector(0, 0, 1), 2), math.radians(-90), math.radians(90)), False)
sketch25.addGeometry(Part.LineSegment(App.Vector(2, 4, 0), App.Vector(2, 0, 0)), False)
sketch25.addGeometry(Part.LineSegment(App.Vector(2, 0, 0), App.Vector(2, 4, 0)), True)
sketch25.addConstraint(Sketcher.Constraint("Coincident", 0, 1, 1, 2))
sketch25.addConstraint(Sketcher.Constraint("Coincident", 1, 1, 0, 2))
sketch25.addConstraint(Sketcher.Constraint("Vertical", 1))
sketch25.addConstraint(Sketcher.Constraint("Vertical", 2))
sketch25.addConstraint(Sketcher.Constraint("Coincident", 2, 1, 0, 1))
sketch25.addConstraint(Sketcher.Constraint("PointOnObject", 0, 1, -1))
sketch25.addConstraint(Sketcher.Constraint("Equal", 1, 2))
sketch25.addConstraint(Sketcher.Constraint("Radius", 0, 2.0))
sketch25.addConstraint(Sketcher.Constraint("DistanceX", -1, 1, 0, 3, 2.0))
sketch25.addConstraint(Sketcher.Constraint("DistanceX", -1, 1, 0, 1, 2.0))
revolution = doc.addObject("PartDesign::Revolution", "Revolution")
body28.addObject(revolution)
revolution.Profile = sketch25
revolution.ReferenceAxis = (sketch25, ["Axis0"])
revolution.Angle = 360
body29 = doc.addObject("PartDesign::Body", "Body028")

sketch26 = doc.addObject("Sketcher::SketchObject", "Sketch025")
body29.addObject(sketch26)
sketch26.AttachmentSupport = (doc.getObject("XZ_Plane028"), [""])
sketch26.MapMode = "FlatFace"
sketch26.AttachmentOffset = App.Placement(App.Vector(0, 0, -178), App.Rotation())
sketch26.addGeometry(Part.ArcOfCircle(Part.Circle(App.Vector(2, 2, 0), App.Vector(0, 0, 1), 2), math.radians(-90), math.radians(90)), False)
sketch26.addGeometry(Part.LineSegment(App.Vector(2, 4, 0), App.Vector(2, 0, 0)), False)
sketch26.addGeometry(Part.LineSegment(App.Vector(2, 0, 0), App.Vector(2, 4, 0)), True)
sketch26.addConstraint(Sketcher.Constraint("Coincident", 0, 1, 1, 2))
sketch26.addConstraint(Sketcher.Constraint("Coincident", 1, 1, 0, 2))
sketch26.addConstraint(Sketcher.Constraint("Vertical", 1))
sketch26.addConstraint(Sketcher.Constraint("Vertical", 2))
sketch26.addConstraint(Sketcher.Constraint("Coincident", 2, 1, 0, 1))
sketch26.addConstraint(Sketcher.Constraint("PointOnObject", 0, 1, -1))
sketch26.addConstraint(Sketcher.Constraint("Equal", 1, 2))
sketch26.addConstraint(Sketcher.Constraint("Radius", 0, 2.0))
sketch26.addConstraint(Sketcher.Constraint("DistanceX", -1, 1, 0, 3, 2.0))
sketch26.addConstraint(Sketcher.Constraint("DistanceX", -1, 1, 0, 1, 2.0))
revolution2 = doc.addObject("PartDesign::Revolution", "Revolution001")
body29.addObject(revolution2)
revolution2.Profile = sketch26
revolution2.ReferenceAxis = (sketch26, ["Axis0"])
revolution2.Angle = 360
body30 = doc.addObject("PartDesign::Body", "Body029")

sketch27 = doc.addObject("Sketcher::SketchObject", "Sketch026")
body30.addObject(sketch27)
sketch27.AttachmentSupport = (doc.getObject("XZ_Plane029"), [""])
sketch27.MapMode = "FlatFace"
sketch27.AttachmentOffset = App.Placement(App.Vector(0, 0, -2), App.Rotation())
sketch27.addGeometry(Part.ArcOfCircle(Part.Circle(App.Vector(2, 28, 0), App.Vector(0, 0, 1), 2), math.radians(-90), math.radians(90)), False)
sketch27.addGeometry(Part.LineSegment(App.Vector(2, 30, 0), App.Vector(2, 26, 0)), False)
sketch27.addGeometry(Part.LineSegment(App.Vector(2, 26, 0), App.Vector(2, 30, 0)), True)
sketch27.addConstraint(Sketcher.Constraint("Coincident", 0, 1, 1, 2))
sketch27.addConstraint(Sketcher.Constraint("Coincident", 1, 1, 0, 2))
sketch27.addConstraint(Sketcher.Constraint("Vertical", 1))
sketch27.addConstraint(Sketcher.Constraint("Vertical", 2))
sketch27.addConstraint(Sketcher.Constraint("Coincident", 2, 1, 0, 1))
sketch27.addConstraint(Sketcher.Constraint("Equal", 1, 2))
sketch27.addConstraint(Sketcher.Constraint("Radius", 0, 2.0))
sketch27.addConstraint(Sketcher.Constraint("DistanceX", -1, 1, 0, 3, 2.0))
sketch27.addConstraint(Sketcher.Constraint("DistanceY", -1, 1, 0, 3, 28.0))
sketch27.addConstraint(Sketcher.Constraint("DistanceX", -1, 1, 0, 1, 2.0))
revolution3 = doc.addObject("PartDesign::Revolution", "Revolution002")
body30.addObject(revolution3)
revolution3.Profile = sketch27
revolution3.ReferenceAxis = (sketch27, ["Axis0"])
revolution3.Angle = 360
body31 = doc.addObject("PartDesign::Body", "Body030")

sketch28 = doc.addObject("Sketcher::SketchObject", "Sketch027")
body31.addObject(sketch28)
sketch28.AttachmentSupport = (doc.getObject("XZ_Plane030"), [""])
sketch28.MapMode = "FlatFace"
sketch28.AttachmentOffset = App.Placement(App.Vector(0, 0, -178), App.Rotation())
sketch28.addGeometry(Part.ArcOfCircle(Part.Circle(App.Vector(2, 28, 0), App.Vector(0, 0, 1), 2), math.radians(-90), math.radians(90)), False)
sketch28.addGeometry(Part.LineSegment(App.Vector(2, 30, 0), App.Vector(2, 26, 0)), False)
sketch28.addGeometry(Part.LineSegment(App.Vector(2, 26, 0), App.Vector(2, 30, 0)), True)
sketch28.addConstraint(Sketcher.Constraint("Coincident", 0, 1, 1, 2))
sketch28.addConstraint(Sketcher.Constraint("Coincident", 1, 1, 0, 2))
sketch28.addConstraint(Sketcher.Constraint("Vertical", 1))
sketch28.addConstraint(Sketcher.Constraint("Vertical", 2))
sketch28.addConstraint(Sketcher.Constraint("Coincident", 2, 1, 0, 1))
sketch28.addConstraint(Sketcher.Constraint("Equal", 1, 2))
sketch28.addConstraint(Sketcher.Constraint("Radius", 0, 2.0))
sketch28.addConstraint(Sketcher.Constraint("DistanceX", -1, 1, 0, 3, 2.0))
sketch28.addConstraint(Sketcher.Constraint("DistanceY", -1, 1, 0, 3, 28.0))
sketch28.addConstraint(Sketcher.Constraint("DistanceX", -1, 1, 0, 1, 2.0))
revolution4 = doc.addObject("PartDesign::Revolution", "Revolution003")
body31.addObject(revolution4)
revolution4.Profile = sketch28
revolution4.ReferenceAxis = (sketch28, ["Axis0"])
revolution4.Angle = 360
body32 = doc.addObject("PartDesign::Body", "Body031")

sketch29 = doc.addObject("Sketcher::SketchObject", "Sketch028")
body32.addObject(sketch29)
sketch29.AttachmentSupport = (doc.getObject("XY_Plane031"), [""])
sketch29.MapMode = "FlatFace"
sketch29.addGeometry(Part.LineSegment(App.Vector(2, 180, 0), App.Vector(2, 0, 0)), False)
sketch29.addGeometry(Part.LineSegment(App.Vector(2, 0, 0), App.Vector(5, 0, 0)), False)
sketch29.addGeometry(Part.LineSegment(App.Vector(5, 0, 0), App.Vector(5, 180, 0)), False)
sketch29.addGeometry(Part.LineSegment(App.Vector(5, 180, 0), App.Vector(2, 180, 0)), False)
sketch29.addConstraint(Sketcher.Constraint("Coincident", 0, 2, 1, 1))
sketch29.addConstraint(Sketcher.Constraint("Coincident", 1, 2, 2, 1))
sketch29.addConstraint(Sketcher.Constraint("Coincident", 2, 2, 3, 1))
sketch29.addConstraint(Sketcher.Constraint("Coincident", 3, 2, 0, 1))
sketch29.addConstraint(Sketcher.Constraint("Vertical", 0))
sketch29.addConstraint(Sketcher.Constraint("Horizontal", 1))
sketch29.addConstraint(Sketcher.Constraint("Vertical", 2))
sketch29.addConstraint(Sketcher.Constraint("Horizontal", 3))
sketch29.addConstraint(Sketcher.Constraint("PointOnObject", 0, 2, -1))
sketch29.addConstraint(Sketcher.Constraint("DistanceX", 1, 1, 1, 2, 3.0))
sketch29.addConstraint(Sketcher.Constraint("DistanceY", 0, 2, 0, 1, 180.0))
sketch29.addConstraint(Sketcher.Constraint("DistanceX", -1, 1, 0, 2, 2.0))
pad25 = doc.addObject("PartDesign::Pad", "Pad024")
body32.addObject(pad25)
pad25.Profile = sketch29
pad25.Length = 30
doc.recompute()

fillet2 = doc.addObject("PartDesign::Fillet", "Fillet001")
body32.addObject(fillet2)
fillet2.Base = (pad25, edges_at(pad25, [
    (3.5, 0, 0),
    (3.5, 0, 30),
    (3.5, 180, 0),
    (3.5, 180, 30),
]))
fillet2.Radius = 2
doc.recompute()

boolean20 = doc.addObject("PartDesign::Boolean", "Boolean019")
body32.addObject(boolean20)
boolean20.Type = "Fuse"
boolean20.addObjects([body23])
doc.recompute()

boolean21 = doc.addObject("PartDesign::Boolean", "Boolean020")
body32.addObject(boolean21)
boolean21.Type = "Fuse"
boolean21.addObjects([body24])
doc.recompute()

boolean22 = doc.addObject("PartDesign::Boolean", "Boolean021")
body32.addObject(boolean22)
boolean22.Type = "Fuse"
boolean22.addObjects([body25])
doc.recompute()

boolean23 = doc.addObject("PartDesign::Boolean", "Boolean022")
body32.addObject(boolean23)
boolean23.Type = "Fuse"
boolean23.addObjects([body26])
doc.recompute()

boolean24 = doc.addObject("PartDesign::Boolean", "Boolean023")
body32.addObject(boolean24)
boolean24.Type = "Fuse"
boolean24.addObjects([body27])
doc.recompute()

boolean25 = doc.addObject("PartDesign::Boolean", "Boolean024")
body32.addObject(boolean25)
boolean25.Type = "Fuse"
boolean25.addObjects([body28])
doc.recompute()

boolean26 = doc.addObject("PartDesign::Boolean", "Boolean025")
body32.addObject(boolean26)
boolean26.Type = "Fuse"
boolean26.addObjects([body29])
doc.recompute()

boolean27 = doc.addObject("PartDesign::Boolean", "Boolean026")
body32.addObject(boolean27)
boolean27.Type = "Fuse"
boolean27.addObjects([body30])
doc.recompute()

boolean28 = doc.addObject("PartDesign::Boolean", "Boolean027")
body32.addObject(boolean28)
boolean28.Type = "Fuse"
boolean28.addObjects([body31])
doc.recompute()

boolean29 = doc.addObject("PartDesign::Boolean", "Boolean028")
body32.addObject(boolean29)
boolean29.Type = "Cut"
boolean29.addObjects([body22])
doc.recompute()

boolean30 = doc.addObject("PartDesign::Boolean", "Boolean029")
body32.addObject(boolean30)
boolean30.Type = "Cut"
boolean30.addObjects([body12])
doc.recompute()

boolean31 = doc.addObject("PartDesign::Boolean", "Boolean030")
body32.addObject(boolean31)
boolean31.Type = "Cut"
boolean31.addObjects([body2])

doc.recompute()
